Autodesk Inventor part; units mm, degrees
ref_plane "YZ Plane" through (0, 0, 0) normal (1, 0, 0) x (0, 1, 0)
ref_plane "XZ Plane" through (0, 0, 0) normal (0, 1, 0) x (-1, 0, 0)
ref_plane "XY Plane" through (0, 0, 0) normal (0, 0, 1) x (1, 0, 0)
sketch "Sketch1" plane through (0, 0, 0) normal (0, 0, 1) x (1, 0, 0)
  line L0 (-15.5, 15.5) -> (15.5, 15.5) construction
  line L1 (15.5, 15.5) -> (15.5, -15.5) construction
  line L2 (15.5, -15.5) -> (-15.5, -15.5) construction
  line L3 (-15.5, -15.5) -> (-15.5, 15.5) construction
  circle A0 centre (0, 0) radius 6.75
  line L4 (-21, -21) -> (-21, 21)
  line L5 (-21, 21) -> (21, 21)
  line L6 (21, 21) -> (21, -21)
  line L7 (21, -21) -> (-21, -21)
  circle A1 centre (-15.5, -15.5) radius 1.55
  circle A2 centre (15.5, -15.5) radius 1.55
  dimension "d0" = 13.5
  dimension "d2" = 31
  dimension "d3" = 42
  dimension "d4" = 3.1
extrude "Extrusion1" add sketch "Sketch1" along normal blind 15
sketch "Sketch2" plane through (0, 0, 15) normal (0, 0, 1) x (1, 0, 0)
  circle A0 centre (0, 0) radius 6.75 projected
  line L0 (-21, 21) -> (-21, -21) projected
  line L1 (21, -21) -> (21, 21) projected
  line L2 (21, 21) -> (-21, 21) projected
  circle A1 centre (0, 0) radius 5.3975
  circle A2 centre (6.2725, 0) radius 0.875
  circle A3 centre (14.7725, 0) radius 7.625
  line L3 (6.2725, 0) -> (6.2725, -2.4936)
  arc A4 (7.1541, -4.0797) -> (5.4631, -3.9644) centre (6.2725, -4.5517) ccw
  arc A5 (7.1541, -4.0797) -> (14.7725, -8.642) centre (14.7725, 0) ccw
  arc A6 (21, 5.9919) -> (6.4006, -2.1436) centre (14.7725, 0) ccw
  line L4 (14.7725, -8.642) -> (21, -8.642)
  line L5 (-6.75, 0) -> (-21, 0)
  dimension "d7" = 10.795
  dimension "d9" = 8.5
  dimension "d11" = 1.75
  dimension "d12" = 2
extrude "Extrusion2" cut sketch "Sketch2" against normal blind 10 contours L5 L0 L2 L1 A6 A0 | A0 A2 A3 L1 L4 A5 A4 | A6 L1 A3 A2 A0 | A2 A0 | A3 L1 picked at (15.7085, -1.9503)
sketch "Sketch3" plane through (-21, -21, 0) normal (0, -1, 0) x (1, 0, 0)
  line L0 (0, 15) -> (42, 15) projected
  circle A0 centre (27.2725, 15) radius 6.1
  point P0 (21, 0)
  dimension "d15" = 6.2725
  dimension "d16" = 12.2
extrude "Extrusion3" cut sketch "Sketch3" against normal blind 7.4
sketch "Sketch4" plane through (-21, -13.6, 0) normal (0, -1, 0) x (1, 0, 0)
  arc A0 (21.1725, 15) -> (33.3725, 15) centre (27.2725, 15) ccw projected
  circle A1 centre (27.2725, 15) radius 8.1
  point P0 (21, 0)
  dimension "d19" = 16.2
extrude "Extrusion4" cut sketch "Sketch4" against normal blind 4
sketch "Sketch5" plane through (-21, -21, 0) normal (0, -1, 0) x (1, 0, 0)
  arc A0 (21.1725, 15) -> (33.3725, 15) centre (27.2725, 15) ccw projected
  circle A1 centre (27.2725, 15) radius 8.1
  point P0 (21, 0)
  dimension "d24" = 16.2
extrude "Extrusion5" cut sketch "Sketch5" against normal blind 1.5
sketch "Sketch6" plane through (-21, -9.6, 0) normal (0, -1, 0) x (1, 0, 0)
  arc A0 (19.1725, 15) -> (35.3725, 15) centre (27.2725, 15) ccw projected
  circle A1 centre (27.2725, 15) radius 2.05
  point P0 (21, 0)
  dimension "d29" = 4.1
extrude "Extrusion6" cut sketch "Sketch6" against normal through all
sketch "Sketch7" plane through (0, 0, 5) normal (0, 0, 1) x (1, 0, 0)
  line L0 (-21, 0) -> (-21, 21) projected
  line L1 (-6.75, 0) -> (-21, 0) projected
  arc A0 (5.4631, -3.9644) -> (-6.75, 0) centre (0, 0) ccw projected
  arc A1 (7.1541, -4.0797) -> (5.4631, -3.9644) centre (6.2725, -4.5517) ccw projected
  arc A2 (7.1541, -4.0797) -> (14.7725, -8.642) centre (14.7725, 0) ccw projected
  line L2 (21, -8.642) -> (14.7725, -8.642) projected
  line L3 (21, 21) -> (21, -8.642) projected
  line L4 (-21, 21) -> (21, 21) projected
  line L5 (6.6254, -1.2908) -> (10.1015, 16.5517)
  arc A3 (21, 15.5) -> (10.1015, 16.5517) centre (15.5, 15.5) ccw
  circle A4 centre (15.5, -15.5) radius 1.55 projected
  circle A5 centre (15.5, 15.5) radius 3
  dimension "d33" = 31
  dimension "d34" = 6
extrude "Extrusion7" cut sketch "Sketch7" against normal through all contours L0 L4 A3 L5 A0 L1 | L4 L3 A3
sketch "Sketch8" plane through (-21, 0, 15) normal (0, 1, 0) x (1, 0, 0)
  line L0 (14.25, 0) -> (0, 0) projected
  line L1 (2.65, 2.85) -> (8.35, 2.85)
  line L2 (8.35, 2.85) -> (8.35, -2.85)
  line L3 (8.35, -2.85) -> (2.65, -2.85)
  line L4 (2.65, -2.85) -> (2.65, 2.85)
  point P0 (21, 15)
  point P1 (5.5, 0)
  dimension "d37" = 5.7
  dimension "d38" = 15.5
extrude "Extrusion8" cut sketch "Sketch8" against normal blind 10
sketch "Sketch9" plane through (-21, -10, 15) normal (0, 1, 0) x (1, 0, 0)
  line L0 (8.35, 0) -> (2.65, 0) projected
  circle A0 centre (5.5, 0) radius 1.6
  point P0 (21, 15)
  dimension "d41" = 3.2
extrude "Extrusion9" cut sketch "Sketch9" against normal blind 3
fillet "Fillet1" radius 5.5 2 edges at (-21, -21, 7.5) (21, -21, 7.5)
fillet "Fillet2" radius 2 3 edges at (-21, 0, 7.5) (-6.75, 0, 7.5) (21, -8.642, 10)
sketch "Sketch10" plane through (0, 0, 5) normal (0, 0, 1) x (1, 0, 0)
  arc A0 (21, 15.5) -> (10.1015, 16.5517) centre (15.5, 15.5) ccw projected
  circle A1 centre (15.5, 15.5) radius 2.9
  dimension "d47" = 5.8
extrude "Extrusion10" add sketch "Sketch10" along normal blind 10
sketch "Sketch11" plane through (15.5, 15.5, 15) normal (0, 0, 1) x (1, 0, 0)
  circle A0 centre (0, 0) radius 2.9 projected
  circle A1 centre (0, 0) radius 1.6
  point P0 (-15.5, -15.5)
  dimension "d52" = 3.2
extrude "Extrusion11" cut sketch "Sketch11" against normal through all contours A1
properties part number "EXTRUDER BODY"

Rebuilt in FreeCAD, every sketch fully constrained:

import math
import FreeCAD as App
import Part
import Sketcher


def edges_at(feature, points):
    """Names of the edges that pass closest to the given points."""
    edges = feature.Shape.Edges
    near = lambda p: min(range(len(edges)), key=lambda i: edges[i].distToShape(Part.Vertex(*p))[0])
    return sorted({f"Edge{near(p) + 1}" for p in points})

doc = App.newDocument("Part")
params = doc.addObject("Spreadsheet::Sheet", "Params")
for row, (alias, value) in enumerate([
    ("sketch1_diameter", "3.1 mm"),
    ("sketch1_diameter2", "13.5 mm"),
    ("sketch1_width", "42 mm"),
    ("pad1_length", "15 mm"),
    ("sketch2_radius", "1 mm"),
    ("sketch2_width", "42 mm"),
    ("sketch2_height", "21 mm"),
    ("sketch2_radius2", "6.75 mm"),
    ("pocket1_length", "10 mm"),
    ("sketch3_diameter", "12.2 mm"),
    ("pocket2_length", "7.4 mm"),
    ("sketch4_diameter", "16.2 mm"),
    ("pocket3_length", "4 mm"),
    ("sketch5_diameter", "16.2 mm"),
    ("pocket4_length", "1.5 mm"),
    ("sketch6_diameter", "4.1 mm"),
    ("sketch7_radius", "5.5 mm"),
    ("sketch7_height", "21 mm"),
    ("sketch7_radius2", "6.75 mm"),
    ("sketch7_width", "36.5 mm"),
    ("sketch8_width", "5.7 mm"),
    ("pocket7_length", "10 mm"),
    ("sketch9_diameter", "3.2 mm"),
    ("pocket8_length", "3 mm"),
    ("fillet_radius", "5.5 mm"),
    ("fillet2_radius", "2 mm"),
    ("sketch10_diameter", "5.8 mm"),
    ("pad2_length", "10 mm"),
    ("sketch11_diameter", "3.2 mm"),
], start=1):
    params.set(f"A{row}", alias)
    params.set(f"B{row}", "=" + value)
    params.setAlias(f"B{row}", alias)

body = doc.addObject("PartDesign::Body", "Body")

# Sketch on XY plane
sketch1 = body.newObject("Sketcher::SketchObject", "Sketch")
sketch1.AttachmentSupport = (doc.getObject("XY_Plane"), [""])
sketch1.MapMode = "FlatFace"
sketch1.addGeometry(Part.LineSegment(App.Vector(-21, 21, 0), App.Vector(-21, -21, 0)), False)
sketch1.addGeometry(Part.LineSegment(App.Vector(-21, -21, 0), App.Vector(21, -21, 0)), False)
sketch1.addGeometry(Part.LineSegment(App.Vector(21, -21, 0), App.Vector(21, 21, 0)), False)
sketch1.addGeometry(Part.LineSegment(App.Vector(21, 21, 0), App.Vector(-21, 21, 0)), False)
sketch1.addGeometry(Part.Circle(App.Vector(-15.5, -15.5, 0), App.Vector(0, 0, 1), 1.6), False)
sketch1.addGeometry(Part.Circle(App.Vector(15.5, -15.5, 0), App.Vector(0, 0, 1), 1.6), False)
sketch1.addGeometry(Part.Circle(App.Vector(0, 0, 0), App.Vector(0, 0, 1), 6.8), False)
sketch1.addConstraint(Sketcher.Constraint("Coincident", 0, 2, 1, 1))
sketch1.addConstraint(Sketcher.Constraint("Coincident", 1, 2, 2, 1))
sketch1.addConstraint(Sketcher.Constraint("Coincident", 2, 2, 3, 1))
sketch1.addConstraint(Sketcher.Constraint("Coincident", 3, 2, 0, 1))
sketch1.addConstraint(Sketcher.Constraint("Vertical", 0))
sketch1.addConstraint(Sketcher.Constraint("Horizontal", 1))
sketch1.addConstraint(Sketcher.Constraint("Vertical", 2))
sketch1.addConstraint(Sketcher.Constraint("Horizontal", 3))
sketch1.addConstraint(Sketcher.Constraint("Coincident", 6, 3, -1, 1))
sketch1.addConstraint(Sketcher.Constraint("Equal", 4, 5))
sketch1.addConstraint(Sketcher.Constraint("Symmetric", 0, 2, 2, 2, -1, 1))
sketch1.addConstraint(Sketcher.Constraint("Symmetric", 4, 3, 5, 3, -2))
sketch1.addConstraint(Sketcher.Constraint("Equal", 3, 0))
sketch1.addConstraint(Sketcher.Constraint("Diameter", 4, 3.1))
sketch1.addConstraint(Sketcher.Constraint("Diameter", 6, 13.5))
sketch1.addConstraint(Sketcher.Constraint("DistanceX", 1, 1, 1, 2, 42.0))
sketch1.addConstraint(Sketcher.Constraint("DistanceX", 4, 3, 5, 3, 31.0))
sketch1.addConstraint(Sketcher.Constraint("DistanceY", 4, 3, -1, 1, 15.5))
sketch1.setExpression("Constraints[13]", "Params.sketch1_diameter")
sketch1.setExpression("Constraints[14]", "Params.sketch1_diameter2")
sketch1.setExpression("Constraints[15]", "Params.sketch1_width")
pad1 = body.newObject("PartDesign::Pad", "Pad")
pad1.Profile = sketch1
pad1.setExpression("Length", "Params.pad1_length")

# Sketch on XY plane
sketch2 = body.newObject("Sketcher::SketchObject", "Sketch001")
sketch2.AttachmentSupport = (doc.getObject("XY_Plane"), [""])
sketch2.MapMode = "FlatFace"
sketch2.AttachmentOffset = App.Placement(App.Vector(0, 0, 15), App.Rotation())
sketch2.addGeometry(Part.LineSegment(App.Vector(-21, 0, 0), App.Vector(-6.8, 0, 0)), False)
sketch2.addGeometry(Part.ArcOfCircle(Part.Circle(App.Vector(0, 0, 0), App.Vector(0, 0, 1), 6.8), math.radians(-36), math.radians(180)), False)
sketch2.addGeometry(Part.ArcOfCircle(Part.Circle(App.Vector(6.3, -4.6, 0), App.Vector(0, 0, 1), 1), math.radians(28), math.radians(144)), False)
sketch2.addGeometry(Part.ArcOfCircle(Part.Circle(App.Vector(14.8, 0, 0), App.Vector(0, 0, 1), 8.6), math.radians(-152), math.radians(-90)), False)
sketch2.addGeometry(Part.LineSegment(App.Vector(14.8, -8.6, 0), App.Vector(21, -8.6, 0)), False)
sketch2.addGeometry(Part.LineSegment(App.Vector(21, -8.6, 0), App.Vector(21, 21, 0)), False)
sketch2.addGeometry(Part.LineSegment(App.Vector(21, 21, 0), App.Vector(-21, 21, 0)), False)
sketch2.addGeometry(Part.LineSegment(App.Vector(-21, 21, 0), App.Vector(-21, 0, 0)), False)
sketch2.addConstraint(Sketcher.Constraint("Coincident", 0, 2, 1, 2))
sketch2.addConstraint(Sketcher.Constraint("Tangent", 1, 1, 2, 2))
sketch2.addConstraint(Sketcher.Constraint("Tangent", 2, 1, 3, 1))
sketch2.addConstraint(Sketcher.Constraint("Tangent", 3, 2, 4, 1))
sketch2.addConstraint(Sketcher.Constraint("Coincident", 4, 2, 5, 1))
sketch2.addConstraint(Sketcher.Constraint("Coincident", 5, 2, 6, 1))
sketch2.addConstraint(Sketcher.Constraint("Coincident", 6, 2, 7, 1))
sketch2.addConstraint(Sketcher.Constraint("Coincident", 7, 2, 0, 1))
sketch2.addConstraint(Sketcher.Constraint("Horizontal", 0))
sketch2.addConstraint(Sketcher.Constraint("Horizontal", 4))
sketch2.addConstraint(Sketcher.Constraint("Vertical", 5))
sketch2.addConstraint(Sketcher.Constraint("Horizontal", 6))
sketch2.addConstraint(Sketcher.Constraint("Vertical", 7))
sketch2.addConstraint(Sketcher.Constraint("Coincident", 1, 3, -1, 1))
sketch2.addConstraint(Sketcher.Constraint("PointOnObject", 3, 3, -1))
sketch2.addConstraint(Sketcher.Constraint("PointOnObject", 0, 2, -1))
sketch2.addConstraint(Sketcher.Constraint("Radius", 2, 1.0))
sketch2.addConstraint(Sketcher.Constraint("DistanceX", 2, 3, 3, 3, 8.5))
sketch2.addConstraint(Sketcher.Constraint("DistanceX", 6, 2, 6, 1, 42.0))
sketch2.addConstraint(Sketcher.Constraint("DistanceY", 7, 2, 7, 1, 21.0))
sketch2.addConstraint(Sketcher.Constraint("Radius", 1, 6.75))
sketch2.addConstraint(Sketcher.Constraint("DistanceX", -1, 1, 4, 2, 21.0))
sketch2.addConstraint(Sketcher.Constraint("Radius", 3, 8.642))
sketch2.setExpression("Constraints[16]", "Params.sketch2_radius")
sketch2.setExpression("Constraints[18]", "Params.sketch2_width")
sketch2.setExpression("Constraints[19]", "Params.sketch2_height")
sketch2.setExpression("Constraints[20]", "Params.sketch2_radius2")
pocket1 = body.newObject("PartDesign::Pocket", "Pocket")
pocket1.Profile = sketch2
pocket1.setExpression("Length", "Params.pocket1_length")

# Sketch on XZ plane
sketch3 = body.newObject("Sketcher::SketchObject", "Sketch002")
sketch3.AttachmentSupport = (doc.getObject("XZ_Plane"), [""])
sketch3.MapMode = "FlatFace"
sketch3.AttachmentOffset = App.Placement(App.Vector(0, 0, 21), App.Rotation())
sketch3.addGeometry(Part.Circle(App.Vector(6, 15, 0), App.Vector(0, 0, 1), 6), False)
sketch3.addConstraint(Sketcher.Constraint("Diameter", 0, 12.2))
sketch3.addConstraint(Sketcher.Constraint("DistanceY", -1, 1, 0, 3, 15.0))
sketch3.addConstraint(Sketcher.Constraint("DistanceX", -1, 1, 0, 3, 6.2725))
sketch3.setExpression("Constraints[0]", "Params.sketch3_diameter")
pocket2 = body.newObject("PartDesign::Pocket", "Pocket001")
pocket2.Profile = sketch3
pocket2.setExpression("Length", "Params.pocket2_length")

# Sketch on XZ plane
sketch4 = body.newObject("Sketcher::SketchObject", "Sketch003")
sketch4.AttachmentSupport = (doc.getObject("XZ_Plane"), [""])
sketch4.MapMode = "FlatFace"
sketch4.AttachmentOffset = App.Placement(App.Vector(0, 0, 13.6), App.Rotation())
sketch4.addGeometry(Part.Circle(App.Vector(6, 15, 0), App.Vector(0, 0, 1), 8), False)
sketch4.addConstraint(Sketcher.Constraint("Diameter", 0, 16.2))
sketch4.addConstraint(Sketcher.Constraint("DistanceY", -1, 1, 0, 3, 15.0))
sketch4.addConstraint(Sketcher.Constraint("DistanceX", -1, 1, 0, 3, 6.2725))
sketch4.setExpression("Constraints[0]", "Params.sketch4_diameter")
pocket3 = body.newObject("PartDesign::Pocket", "Pocket002")
pocket3.Profile = sketch4
pocket3.setExpression("Length", "Params.pocket3_length")

# Sketch on XZ plane
sketch5 = body.newObject("Sketcher::SketchObject", "Sketch004")
sketch5.AttachmentSupport = (doc.getObject("XZ_Plane"), [""])
sketch5.MapMode = "FlatFace"
sketch5.AttachmentOffset = App.Placement(App.Vector(0, 0, 21), App.Rotation())
sketch5.addGeometry(Part.Circle(App.Vector(6, 15, 0), App.Vector(0, 0, 1), 8), False)
sketch5.addConstraint(Sketcher.Constraint("Diameter", 0, 16.2))
sketch5.addConstraint(Sketcher.Constraint("DistanceY", -1, 1, 0, 3, 15.0))
sketch5.addConstraint(Sketcher.Constraint("DistanceX", -1, 1, 0, 3, 6.2725))
sketch5.setExpression("Constraints[0]", "Params.sketch5_diameter")
pocket4 = body.newObject("PartDesign::Pocket", "Pocket003")
pocket4.Profile = sketch5
pocket4.setExpression("Length", "Params.pocket4_length")

# Sketch on XZ plane
sketch6 = body.newObject("Sketcher::SketchObject", "Sketch005")
sketch6.AttachmentSupport = (doc.getObject("XZ_Plane"), [""])
sketch6.MapMode = "FlatFace"
sketch6.AttachmentOffset = App.Placement(App.Vector(0, 0, 9.6), App.Rotation())
sketch6.addGeometry(Part.Circle(App.Vector(6.3, 15, 0), App.Vector(0, 0, 1), 2), False)
sketch6.addConstraint(Sketcher.Constraint("Diameter", 0, 4.1))
sketch6.addConstraint(Sketcher.Constraint("DistanceY", -1, 1, 0, 3, 15.0))
sketch6.addConstraint(Sketcher.Constraint("DistanceX", -1, 1, 0, 3, 6.2725))
sketch6.setExpression("Constraints[0]", "Params.sketch6_diameter")
pocket5 = body.newObject("PartDesign::Pocket", "Pocket004")
pocket5.Profile = sketch6
pocket5.Type = "ThroughAll"

# Sketch on XY plane
sketch7 = body.newObject("Sketcher::SketchObject", "Sketch006")
sketch7.AttachmentSupport = (doc.getObject("XY_Plane"), [""])
sketch7.MapMode = "FlatFace"
sketch7.AttachmentOffset = App.Placement(App.Vector(0, 0, 5), App.Rotation())
sketch7.addGeometry(Part.LineSegment(App.Vector(-21, 21, 0), App.Vector(-21, 0, 0)), False)
sketch7.addGeometry(Part.LineSegment(App.Vector(-21, 0, 0), App.Vector(-7, 0, 0)), False)
sketch7.addGeometry(Part.ArcOfCircle(Part.Circle(App.Vector(0, 0, 0), App.Vector(0, 0, 1), 7), math.radians(-11), math.radians(180)), False)
sketch7.addGeometry(Part.LineSegment(App.Vector(7, -1, 0), App.Vector(10, 17, 0)), False)
sketch7.addGeometry(Part.ArcOfCircle(Part.Circle(App.Vector(16, 16, 0), App.Vector(0, 0, 1), 6), math.radians(90), math.radians(169)), False)
sketch7.addGeometry(Part.LineSegment(App.Vector(16, 21, 0), App.Vector(-21, 21, 0)), False)
sketch7.addGeometry(Part.LineSegment(App.Vector(21, 21, 0), App.Vector(16, 21, 0)), False)
sketch7.addGeometry(Part.ArcOfCircle(Part.Circle(App.Vector(16, 16, 0), App.Vector(0, 0, 1), 6), math.radians(0), math.radians(90)), False)
sketch7.addGeometry(Part.LineSegment(App.Vector(21, 16, 0), App.Vector(21, 21, 0)), False)
sketch7.addConstraint(Sketcher.Constraint("Coincident", 0, 2, 1, 1))
sketch7.addConstraint(Sketcher.Constraint("Coincident", 1, 2, 2, 2))
sketch7.addConstraint(Sketcher.Constraint("Tangent", 2, 1, 3, 1))
sketch7.addConstraint(Sketcher.Constraint("Tangent", 3, 2, 4, 2))
sketch7.addConstraint(Sketcher.Constraint("Tangent", 4, 1, 5, 1))
sketch7.addConstraint(Sketcher.Constraint("Coincident", 5, 2, 0, 1))
sketch7.addConstraint(Sketcher.Constraint("Tangent", 6, 2, 7, 2))
sketch7.addConstraint(Sketcher.Constraint("Tangent", 7, 1, 8, 1))
sketch7.addConstraint(Sketcher.Constraint("Coincident", 8, 2, 6, 1))
sketch7.addConstraint(Sketcher.Constraint("Vertical", 0))
sketch7.addConstraint(Sketcher.Constraint("Horizontal", 1))
sketch7.addConstraint(Sketcher.Constraint("Horizontal", 5))
sketch7.addConstraint(Sketcher.Constraint("Horizontal", 6))
sketch7.addConstraint(Sketcher.Constraint("Vertical", 8))
sketch7.addConstraint(Sketcher.Constraint("Coincident", 2, 3, -1, 1))
sketch7.addConstraint(Sketcher.Constraint("Coincident", 7, 3, 4, 3))
sketch7.addConstraint(Sketcher.Constraint("Equal", 4, 7))
sketch7.addConstraint(Sketcher.Constraint("PointOnObject", 0, 2, -1))
sketch7.addConstraint(Sketcher.Constraint("Radius", 4, 5.5))
sketch7.addConstraint(Sketcher.Constraint("DistanceY", 0, 2, 0, 1, 21.0))
sketch7.addConstraint(Sketcher.Constraint("Radius", 2, 6.75))
sketch7.addConstraint(Sketcher.Constraint("DistanceX", 5, 2, 5, 1, 36.5))
sketch7.addConstraint(Sketcher.Constraint("DistanceX", 0, 2, -1, 1, 21.0))
sketch7.setExpression("Constraints[18]", "Params.sketch7_radius")
sketch7.setExpression("Constraints[19]", "Params.sketch7_height")
sketch7.setExpression("Constraints[20]", "Params.sketch7_radius2")
sketch7.setExpression("Constraints[21]", "Params.sketch7_width")
pocket6 = body.newObject("PartDesign::Pocket", "Pocket005")
pocket6.Profile = sketch7
pocket6.Type = "ThroughAll"

# Sketch on XZ plane
sketch8 = body.newObject("Sketcher::SketchObject", "Sketch007")
sketch8.AttachmentSupport = (doc.getObject("XZ_Plane"), [""])
sketch8.MapMode = "FlatFace"
sketch8.addGeometry(Part.LineSegment(App.Vector(-13, 18, 0), App.Vector(-13, 12, 0)), False)
sketch8.addGeometry(Part.LineSegment(App.Vector(-13, 12, 0), App.Vector(-18, 12, 0)), False)
sketch8.addGeometry(Part.LineSegment(App.Vector(-18, 12, 0), App.Vector(-18, 18, 0)), False)
sketch8.addGeometry(Part.LineSegment(App.Vector(-18, 18, 0), App.Vector(-13, 18, 0)), False)
sketch8.addConstraint(Sketcher.Constraint("Coincident", 0, 2, 1, 1))
sketch8.addConstraint(Sketcher.Constraint("Coincident", 1, 2, 2, 1))
sketch8.addConstraint(Sketcher.Constraint("Coincident", 2, 2, 3, 1))
sketch8.addConstraint(Sketcher.Constraint("Coincident", 3, 2, 0, 1))
sketch8.addConstraint(Sketcher.Constraint("Vertical", 0))
sketch8.addConstraint(Sketcher.Constraint("Horizontal", 1))
sketch8.addConstraint(Sketcher.Constraint("Vertical", 2))
sketch8.addConstraint(Sketcher.Constraint("Horizontal", 3))
sketch8.addConstraint(Sketcher.Constraint("Equal", 3, 0))
sketch8.addConstraint(Sketcher.Constraint("DistanceX", 1, 2, 1, 1, 5.7))
sketch8.addConstraint(Sketcher.Constraint("DistanceX", 0, 2, -1, 1, 12.65))
sketch8.addConstraint(Sketcher.Constraint("DistanceY", -1, 1, 0, 2, 12.15))
sketch8.setExpression("Constraints[9]", "Params.sketch8_width")
pocket7 = body.newObject("PartDesign::Pocket", "Pocket006")
pocket7.Profile = sketch8
pocket7.setExpression("Length", "Params.pocket7_length")
pocket7.Reversed = True

# Sketch on XZ plane
sketch9 = body.newObject("Sketcher::SketchObject", "Sketch008")
sketch9.AttachmentSupport = (doc.getObject("XZ_Plane"), [""])
sketch9.MapMode = "FlatFace"
sketch9.AttachmentOffset = App.Placement(App.Vector(0, 0, 10), App.Rotation())
sketch9.addGeometry(Part.Circle(App.Vector(-15.5, 15, 0), App.Vector(0, 0, 1), 1.6), False)
sketch9.addConstraint(Sketcher.Constraint("Diameter", 0, 3.2))
sketch9.addConstraint(Sketcher.Constraint("DistanceY", -1, 1, 0, 3, 15.0))
sketch9.addConstraint(Sketcher.Constraint("DistanceX", 0, 3, -1, 1, 15.5))
sketch9.setExpression("Constraints[0]", "Params.sketch9_diameter")
pocket8 = body.newObject("PartDesign::Pocket", "Pocket007")
pocket8.Profile = sketch9
pocket8.setExpression("Length", "Params.pocket8_length")
pocket8.Reversed = True
doc.recompute()

fillet = body.newObject("PartDesign::Fillet", "Fillet")
fillet.Base = (pocket8, edges_at(pocket8, [(-21, -21, 7.5), (21, -21, 7.5)]))
fillet.setExpression("Radius", "Params.fillet_radius")
doc.recompute()

fillet2 = body.newObject("PartDesign::Fillet", "Fillet001")
fillet2.Base = (fillet, edges_at(fillet, [(-21, 0, 7.5), (-6.75, 0, 7.5), (21, -8.642, 10)]))
fillet2.setExpression("Radius", "Params.fillet2_radius")

# Sketch on XY plane
sketch10 = body.newObject("Sketcher::SketchObject", "Sketch009")
sketch10.AttachmentSupport = (doc.getObject("XY_Plane"), [""])
sketch10.MapMode = "FlatFace"
sketch10.AttachmentOffset = App.Placement(App.Vector(0, 0, 5), App.Rotation())
sketch10.addGeometry(Part.Circle(App.Vector(15.5, 15.5, 0), App.Vector(0, 0, 1), 2.9), False)
sketch10.addConstraint(Sketcher.Constraint("Diameter", 0, 5.8))
sketch10.addConstraint(Sketcher.Constraint("DistanceX", -1, 1, 0, 3, 15.5))
sketch10.addConstraint(Sketcher.Constraint("DistanceY", -1, 1, 0, 3, 15.5))
sketch10.setExpression("Constraints[0]", "Params.sketch10_diameter")
pad2 = body.newObject("PartDesign::Pad", "Pad001")
pad2.Profile = sketch10
pad2.setExpression("Length", "Params.pad2_length")

# Sketch on XY plane
sketch11 = body.newObject("Sketcher::SketchObject", "Sketch010")
sketch11.AttachmentSupport = (doc.getObject("XY_Plane"), [""])
sketch11.MapMode = "FlatFace"
sketch11.AttachmentOffset = App.Placement(App.Vector(0, 0, 15), App.Rotation())
sketch11.addGeometry(Part.Circle(App.Vector(15.5, 15.5, 0), App.Vector(0, 0, 1), 1.6), False)
sketch11.addConstraint(Sketcher.Constraint("Diameter", 0, 3.2))
sketch11.addConstraint(Sketcher.Constraint("DistanceX", -1, 1, 0, 3, 15.5))
sketch11.addConstraint(Sketcher.Constraint("DistanceY", -1, 1, 0, 3, 15.5))
sketch11.setExpression("Constraints[0]", "Params.sketch11_diameter")
pocket9 = body.newObject("PartDesign::Pocket", "Pocket008")
pocket9.Profile = sketch11
pocket9.Type = "ThroughAll"

doc.recompute()
